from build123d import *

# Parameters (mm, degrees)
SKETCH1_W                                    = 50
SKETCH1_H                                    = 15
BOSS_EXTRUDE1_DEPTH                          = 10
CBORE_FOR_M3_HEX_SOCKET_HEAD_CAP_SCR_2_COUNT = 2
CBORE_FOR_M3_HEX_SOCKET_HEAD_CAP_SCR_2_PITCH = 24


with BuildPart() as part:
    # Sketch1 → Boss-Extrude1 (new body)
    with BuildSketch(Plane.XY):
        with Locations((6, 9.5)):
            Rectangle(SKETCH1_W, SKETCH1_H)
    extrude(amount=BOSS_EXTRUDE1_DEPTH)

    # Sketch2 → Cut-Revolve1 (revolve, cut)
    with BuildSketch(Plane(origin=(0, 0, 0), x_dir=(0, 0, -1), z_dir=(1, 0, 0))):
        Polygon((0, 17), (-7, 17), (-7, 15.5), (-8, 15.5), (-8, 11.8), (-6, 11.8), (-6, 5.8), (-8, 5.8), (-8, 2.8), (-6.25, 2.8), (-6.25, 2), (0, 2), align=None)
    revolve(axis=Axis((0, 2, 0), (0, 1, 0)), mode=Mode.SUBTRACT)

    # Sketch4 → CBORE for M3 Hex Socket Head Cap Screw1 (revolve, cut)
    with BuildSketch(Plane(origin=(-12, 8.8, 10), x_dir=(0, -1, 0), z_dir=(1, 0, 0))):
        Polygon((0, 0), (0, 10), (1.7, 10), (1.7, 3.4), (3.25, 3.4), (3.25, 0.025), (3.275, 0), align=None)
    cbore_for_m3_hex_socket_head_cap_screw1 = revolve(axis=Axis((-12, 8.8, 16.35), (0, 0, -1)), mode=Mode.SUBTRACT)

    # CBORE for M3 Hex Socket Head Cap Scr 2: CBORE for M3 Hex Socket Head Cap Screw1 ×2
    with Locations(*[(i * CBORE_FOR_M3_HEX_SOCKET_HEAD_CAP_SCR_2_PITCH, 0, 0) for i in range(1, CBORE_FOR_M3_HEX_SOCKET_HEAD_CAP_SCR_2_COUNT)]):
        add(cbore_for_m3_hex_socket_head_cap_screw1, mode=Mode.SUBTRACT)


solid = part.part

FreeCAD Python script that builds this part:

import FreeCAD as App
import Part
import Sketcher
Q = App.Units.Quantity


def add_polygon(sketch, points):
    """Adds a closed chain of lines whose ends are joined by coincident constraints."""
    first, n = sketch.GeometryCount, len(points)
    for a, b in zip(points, points[1:] + points[:1]):
        sketch.addGeometry(Part.LineSegment(App.Vector(*a, 0), App.Vector(*b, 0)), False)
    for i in range(n):
        sketch.addConstraint(Sketcher.Constraint("Coincident", first + i, 2, first + (i + 1) % n, 1))

doc = App.newDocument("Part")
body = doc.addObject("PartDesign::Body", "Body")

# Sketch on XY plane
sketch1 = doc.addObject("Sketcher::SketchObject", "Sketch")
body.addObject(sketch1)
sketch1.AttachmentSupport = (doc.XY_Plane, [""])
sketch1.MapMode = "FlatFace"
add_polygon(sketch1, [(-19, 17), (-19, 2), (31, 2), (31, 17)])  # lines 0-3
sketch1.addConstraint(Sketcher.Constraint("Vertical", 0))
sketch1.addConstraint(Sketcher.Constraint("Horizontal", 1))
sketch1.addConstraint(Sketcher.Constraint("Vertical", 2))
sketch1.addConstraint(Sketcher.Constraint("Horizontal", 3))
sketch1.addConstraint(Sketcher.Constraint("DistanceX", 1, 1, 1, 2, 50.0))
sketch1.addConstraint(Sketcher.Constraint("DistanceY", 0, 2, 0, 1, 15.0))
sketch1.addConstraint(Sketcher.Constraint("DistanceX", 0, 2, -1, 1, 19.0))
sketch1.addConstraint(Sketcher.Constraint("DistanceY", -1, 1, 0, 2, 2.0))
pad1 = doc.addObject("PartDesign::Pad", "Pad")
body.addObject(pad1)
pad1.Profile = sketch1
pad1.Length = 10

# Sketch on YZ plane
sketch2 = doc.addObject("Sketcher::SketchObject", "Sketch001")
body.addObject(sketch2)
sketch2.AttachmentSupport = (doc.YZ_Plane, [""])
sketch2.MapMode = "FlatFace"
add_polygon(sketch2, [(17, 0), (17, 7), (15.5, 7), (15.5, 8), (11.8, 8), (11.8, 6), (5.8, 6), (5.8, 8), (2.8, 8), (2.8, 6.2), (2, 6.2), (2, 0)])  # lines 0-11
sketch2.addConstraint(Sketcher.Constraint("Vertical", 0))
sketch2.addConstraint(Sketcher.Constraint("Horizontal", 1))
sketch2.addConstraint(Sketcher.Constraint("Vertical", 2))
sketch2.addConstraint(Sketcher.Constraint("Horizontal", 3))
sketch2.addConstraint(Sketcher.Constraint("Vertical", 4))
sketch2.addConstraint(Sketcher.Constraint("Horizontal", 5))
sketch2.addConstraint(Sketcher.Constraint("Vertical", 6))
sketch2.addConstraint(Sketcher.Constraint("Horizontal", 7))
sketch2.addConstraint(Sketcher.Constraint("Vertical", 8))
sketch2.addConstraint(Sketcher.Constraint("Horizontal", 9))
sketch2.addConstraint(Sketcher.Constraint("Vertical", 10))
sketch2.addConstraint(Sketcher.Constraint("Horizontal", 11))
sketch2.addConstraint(Sketcher.Constraint("PointOnObject", 10, 2, -1))
sketch2.addConstraint(Sketcher.Constraint("Horizontal", 3, 2, 6, 2))
sketch2.addConstraint(Sketcher.Constraint("DistanceX", 5, 2, 5, 1, 6.0))
sketch2.addConstraint(Sketcher.Constraint("DistanceX", 7, 2, 7, 1, 3.0))
sketch2.addConstraint(Sketcher.Constraint("DistanceX", 11, 1, 11, 2, 15.0))
sketch2.addConstraint(Sketcher.Constraint("DistanceY", 0, 1, 0, 2, 7.0))
sketch2.addConstraint(Sketcher.Constraint("DistanceY", 2, 1, 2, 2, 1.0))
sketch2.addConstraint(Sketcher.Constraint("DistanceY", 4, 2, 4, 1, 2.0))
sketch2.addConstraint(Sketcher.Constraint("DistanceX", 1, 2, 1, 1, 1.5))
sketch2.addConstraint(Sketcher.Constraint("DistanceX", 3, 2, 3, 1, 3.7))
sketch2.addConstraint(Sketcher.Constraint("DistanceX", -1, 1, 0, 2, 17.0))
sketch2.addConstraint(Sketcher.Constraint("DistanceY", 8, 2, 8, 1, 1.75))
groove = doc.addObject("PartDesign::Groove", "Groove")
body.addObject(groove)
groove.Profile = sketch2
groove.ReferenceAxis = (sketch2, ["H_Axis"])
groove.Angle = 360

# Sketch on YZ plane
sketch3 = doc.addObject("Sketcher::SketchObject", "Sketch002")
body.addObject(sketch3)
sketch3.AttachmentSupport = (doc.YZ_Plane, [""])
sketch3.MapMode = "FlatFace"
sketch3.AttachmentOffset = App.Placement(App.Vector(0, 0, -12), App.Rotation())
add_polygon(sketch3, [(8.8, 0), (8.8, 10), (5.525, 10), (5.55, 9.975), (5.55, 6.6), (7.1, 6.6), (7.1, 0)])  # lines 0-6
sketch3.addGeometry(Part.LineSegment(App.Vector(8.8, 10, 0), App.Vector(8.8, 0, 0)), True)  # axis
sketch3.addConstraint(Sketcher.Constraint("Vertical", 0))
sketch3.addConstraint(Sketcher.Constraint("Horizontal", 1))
sketch3.addConstraint(Sketcher.Constraint("Vertical", 3))
sketch3.addConstraint(Sketcher.Constraint("Horizontal", 4))
sketch3.addConstraint(Sketcher.Constraint("Vertical", 5))
sketch3.addConstraint(Sketcher.Constraint("Horizontal", 6))
sketch3.addConstraint(Sketcher.Constraint("Vertical", 7))
sketch3.addConstraint(Sketcher.Constraint("Coincident", 7, 1, 0, 2))
sketch3.addConstraint(Sketcher.Constraint("PointOnObject", 5, 2, -1))
sketch3.addConstraint(Sketcher.Constraint("PointOnObject", 7, 2, -1))
sketch3.addConstraint(Sketcher.Constraint("DistanceY", 0, 1, 0, 2, 10.0))
sketch3.addConstraint(Sketcher.Constraint("Angle", 2, Q("-45 deg")))
sketch3.addConstraint(Sketcher.Constraint("DistanceX", 6, 1, 6, 2, 1.7))
sketch3.addConstraint(Sketcher.Constraint("DistanceY", 5, 2, 5, 1, 6.6))
sketch3.addConstraint(Sketcher.Constraint("DistanceX", 4, 1, 4, 2, 1.55))
sketch3.addConstraint(Sketcher.Constraint("DistanceX", -1, 1, 0, 2, 8.8))
sketch3.addConstraint(Sketcher.Constraint("DistanceX", 1, 2, 1, 1, 3.275))
groove2 = doc.addObject("PartDesign::Groove", "Groove001")
body.addObject(groove2)
groove2.Profile = sketch3
groove2.ReferenceAxis = (sketch3, ["Axis0"])
groove2.Angle = 360
doc.recompute()

linearpattern = doc.addObject("PartDesign::LinearPattern", "LinearPattern")
body.addObject(linearpattern)
linearpattern.Originals = [groove2]
linearpattern.Direction = (doc.X_Axis, [""])
linearpattern.Mode = "offset"
linearpattern.Offset = 24
linearpattern.Occurrences = 2
body.Tip = linearpattern

doc.recompute()
